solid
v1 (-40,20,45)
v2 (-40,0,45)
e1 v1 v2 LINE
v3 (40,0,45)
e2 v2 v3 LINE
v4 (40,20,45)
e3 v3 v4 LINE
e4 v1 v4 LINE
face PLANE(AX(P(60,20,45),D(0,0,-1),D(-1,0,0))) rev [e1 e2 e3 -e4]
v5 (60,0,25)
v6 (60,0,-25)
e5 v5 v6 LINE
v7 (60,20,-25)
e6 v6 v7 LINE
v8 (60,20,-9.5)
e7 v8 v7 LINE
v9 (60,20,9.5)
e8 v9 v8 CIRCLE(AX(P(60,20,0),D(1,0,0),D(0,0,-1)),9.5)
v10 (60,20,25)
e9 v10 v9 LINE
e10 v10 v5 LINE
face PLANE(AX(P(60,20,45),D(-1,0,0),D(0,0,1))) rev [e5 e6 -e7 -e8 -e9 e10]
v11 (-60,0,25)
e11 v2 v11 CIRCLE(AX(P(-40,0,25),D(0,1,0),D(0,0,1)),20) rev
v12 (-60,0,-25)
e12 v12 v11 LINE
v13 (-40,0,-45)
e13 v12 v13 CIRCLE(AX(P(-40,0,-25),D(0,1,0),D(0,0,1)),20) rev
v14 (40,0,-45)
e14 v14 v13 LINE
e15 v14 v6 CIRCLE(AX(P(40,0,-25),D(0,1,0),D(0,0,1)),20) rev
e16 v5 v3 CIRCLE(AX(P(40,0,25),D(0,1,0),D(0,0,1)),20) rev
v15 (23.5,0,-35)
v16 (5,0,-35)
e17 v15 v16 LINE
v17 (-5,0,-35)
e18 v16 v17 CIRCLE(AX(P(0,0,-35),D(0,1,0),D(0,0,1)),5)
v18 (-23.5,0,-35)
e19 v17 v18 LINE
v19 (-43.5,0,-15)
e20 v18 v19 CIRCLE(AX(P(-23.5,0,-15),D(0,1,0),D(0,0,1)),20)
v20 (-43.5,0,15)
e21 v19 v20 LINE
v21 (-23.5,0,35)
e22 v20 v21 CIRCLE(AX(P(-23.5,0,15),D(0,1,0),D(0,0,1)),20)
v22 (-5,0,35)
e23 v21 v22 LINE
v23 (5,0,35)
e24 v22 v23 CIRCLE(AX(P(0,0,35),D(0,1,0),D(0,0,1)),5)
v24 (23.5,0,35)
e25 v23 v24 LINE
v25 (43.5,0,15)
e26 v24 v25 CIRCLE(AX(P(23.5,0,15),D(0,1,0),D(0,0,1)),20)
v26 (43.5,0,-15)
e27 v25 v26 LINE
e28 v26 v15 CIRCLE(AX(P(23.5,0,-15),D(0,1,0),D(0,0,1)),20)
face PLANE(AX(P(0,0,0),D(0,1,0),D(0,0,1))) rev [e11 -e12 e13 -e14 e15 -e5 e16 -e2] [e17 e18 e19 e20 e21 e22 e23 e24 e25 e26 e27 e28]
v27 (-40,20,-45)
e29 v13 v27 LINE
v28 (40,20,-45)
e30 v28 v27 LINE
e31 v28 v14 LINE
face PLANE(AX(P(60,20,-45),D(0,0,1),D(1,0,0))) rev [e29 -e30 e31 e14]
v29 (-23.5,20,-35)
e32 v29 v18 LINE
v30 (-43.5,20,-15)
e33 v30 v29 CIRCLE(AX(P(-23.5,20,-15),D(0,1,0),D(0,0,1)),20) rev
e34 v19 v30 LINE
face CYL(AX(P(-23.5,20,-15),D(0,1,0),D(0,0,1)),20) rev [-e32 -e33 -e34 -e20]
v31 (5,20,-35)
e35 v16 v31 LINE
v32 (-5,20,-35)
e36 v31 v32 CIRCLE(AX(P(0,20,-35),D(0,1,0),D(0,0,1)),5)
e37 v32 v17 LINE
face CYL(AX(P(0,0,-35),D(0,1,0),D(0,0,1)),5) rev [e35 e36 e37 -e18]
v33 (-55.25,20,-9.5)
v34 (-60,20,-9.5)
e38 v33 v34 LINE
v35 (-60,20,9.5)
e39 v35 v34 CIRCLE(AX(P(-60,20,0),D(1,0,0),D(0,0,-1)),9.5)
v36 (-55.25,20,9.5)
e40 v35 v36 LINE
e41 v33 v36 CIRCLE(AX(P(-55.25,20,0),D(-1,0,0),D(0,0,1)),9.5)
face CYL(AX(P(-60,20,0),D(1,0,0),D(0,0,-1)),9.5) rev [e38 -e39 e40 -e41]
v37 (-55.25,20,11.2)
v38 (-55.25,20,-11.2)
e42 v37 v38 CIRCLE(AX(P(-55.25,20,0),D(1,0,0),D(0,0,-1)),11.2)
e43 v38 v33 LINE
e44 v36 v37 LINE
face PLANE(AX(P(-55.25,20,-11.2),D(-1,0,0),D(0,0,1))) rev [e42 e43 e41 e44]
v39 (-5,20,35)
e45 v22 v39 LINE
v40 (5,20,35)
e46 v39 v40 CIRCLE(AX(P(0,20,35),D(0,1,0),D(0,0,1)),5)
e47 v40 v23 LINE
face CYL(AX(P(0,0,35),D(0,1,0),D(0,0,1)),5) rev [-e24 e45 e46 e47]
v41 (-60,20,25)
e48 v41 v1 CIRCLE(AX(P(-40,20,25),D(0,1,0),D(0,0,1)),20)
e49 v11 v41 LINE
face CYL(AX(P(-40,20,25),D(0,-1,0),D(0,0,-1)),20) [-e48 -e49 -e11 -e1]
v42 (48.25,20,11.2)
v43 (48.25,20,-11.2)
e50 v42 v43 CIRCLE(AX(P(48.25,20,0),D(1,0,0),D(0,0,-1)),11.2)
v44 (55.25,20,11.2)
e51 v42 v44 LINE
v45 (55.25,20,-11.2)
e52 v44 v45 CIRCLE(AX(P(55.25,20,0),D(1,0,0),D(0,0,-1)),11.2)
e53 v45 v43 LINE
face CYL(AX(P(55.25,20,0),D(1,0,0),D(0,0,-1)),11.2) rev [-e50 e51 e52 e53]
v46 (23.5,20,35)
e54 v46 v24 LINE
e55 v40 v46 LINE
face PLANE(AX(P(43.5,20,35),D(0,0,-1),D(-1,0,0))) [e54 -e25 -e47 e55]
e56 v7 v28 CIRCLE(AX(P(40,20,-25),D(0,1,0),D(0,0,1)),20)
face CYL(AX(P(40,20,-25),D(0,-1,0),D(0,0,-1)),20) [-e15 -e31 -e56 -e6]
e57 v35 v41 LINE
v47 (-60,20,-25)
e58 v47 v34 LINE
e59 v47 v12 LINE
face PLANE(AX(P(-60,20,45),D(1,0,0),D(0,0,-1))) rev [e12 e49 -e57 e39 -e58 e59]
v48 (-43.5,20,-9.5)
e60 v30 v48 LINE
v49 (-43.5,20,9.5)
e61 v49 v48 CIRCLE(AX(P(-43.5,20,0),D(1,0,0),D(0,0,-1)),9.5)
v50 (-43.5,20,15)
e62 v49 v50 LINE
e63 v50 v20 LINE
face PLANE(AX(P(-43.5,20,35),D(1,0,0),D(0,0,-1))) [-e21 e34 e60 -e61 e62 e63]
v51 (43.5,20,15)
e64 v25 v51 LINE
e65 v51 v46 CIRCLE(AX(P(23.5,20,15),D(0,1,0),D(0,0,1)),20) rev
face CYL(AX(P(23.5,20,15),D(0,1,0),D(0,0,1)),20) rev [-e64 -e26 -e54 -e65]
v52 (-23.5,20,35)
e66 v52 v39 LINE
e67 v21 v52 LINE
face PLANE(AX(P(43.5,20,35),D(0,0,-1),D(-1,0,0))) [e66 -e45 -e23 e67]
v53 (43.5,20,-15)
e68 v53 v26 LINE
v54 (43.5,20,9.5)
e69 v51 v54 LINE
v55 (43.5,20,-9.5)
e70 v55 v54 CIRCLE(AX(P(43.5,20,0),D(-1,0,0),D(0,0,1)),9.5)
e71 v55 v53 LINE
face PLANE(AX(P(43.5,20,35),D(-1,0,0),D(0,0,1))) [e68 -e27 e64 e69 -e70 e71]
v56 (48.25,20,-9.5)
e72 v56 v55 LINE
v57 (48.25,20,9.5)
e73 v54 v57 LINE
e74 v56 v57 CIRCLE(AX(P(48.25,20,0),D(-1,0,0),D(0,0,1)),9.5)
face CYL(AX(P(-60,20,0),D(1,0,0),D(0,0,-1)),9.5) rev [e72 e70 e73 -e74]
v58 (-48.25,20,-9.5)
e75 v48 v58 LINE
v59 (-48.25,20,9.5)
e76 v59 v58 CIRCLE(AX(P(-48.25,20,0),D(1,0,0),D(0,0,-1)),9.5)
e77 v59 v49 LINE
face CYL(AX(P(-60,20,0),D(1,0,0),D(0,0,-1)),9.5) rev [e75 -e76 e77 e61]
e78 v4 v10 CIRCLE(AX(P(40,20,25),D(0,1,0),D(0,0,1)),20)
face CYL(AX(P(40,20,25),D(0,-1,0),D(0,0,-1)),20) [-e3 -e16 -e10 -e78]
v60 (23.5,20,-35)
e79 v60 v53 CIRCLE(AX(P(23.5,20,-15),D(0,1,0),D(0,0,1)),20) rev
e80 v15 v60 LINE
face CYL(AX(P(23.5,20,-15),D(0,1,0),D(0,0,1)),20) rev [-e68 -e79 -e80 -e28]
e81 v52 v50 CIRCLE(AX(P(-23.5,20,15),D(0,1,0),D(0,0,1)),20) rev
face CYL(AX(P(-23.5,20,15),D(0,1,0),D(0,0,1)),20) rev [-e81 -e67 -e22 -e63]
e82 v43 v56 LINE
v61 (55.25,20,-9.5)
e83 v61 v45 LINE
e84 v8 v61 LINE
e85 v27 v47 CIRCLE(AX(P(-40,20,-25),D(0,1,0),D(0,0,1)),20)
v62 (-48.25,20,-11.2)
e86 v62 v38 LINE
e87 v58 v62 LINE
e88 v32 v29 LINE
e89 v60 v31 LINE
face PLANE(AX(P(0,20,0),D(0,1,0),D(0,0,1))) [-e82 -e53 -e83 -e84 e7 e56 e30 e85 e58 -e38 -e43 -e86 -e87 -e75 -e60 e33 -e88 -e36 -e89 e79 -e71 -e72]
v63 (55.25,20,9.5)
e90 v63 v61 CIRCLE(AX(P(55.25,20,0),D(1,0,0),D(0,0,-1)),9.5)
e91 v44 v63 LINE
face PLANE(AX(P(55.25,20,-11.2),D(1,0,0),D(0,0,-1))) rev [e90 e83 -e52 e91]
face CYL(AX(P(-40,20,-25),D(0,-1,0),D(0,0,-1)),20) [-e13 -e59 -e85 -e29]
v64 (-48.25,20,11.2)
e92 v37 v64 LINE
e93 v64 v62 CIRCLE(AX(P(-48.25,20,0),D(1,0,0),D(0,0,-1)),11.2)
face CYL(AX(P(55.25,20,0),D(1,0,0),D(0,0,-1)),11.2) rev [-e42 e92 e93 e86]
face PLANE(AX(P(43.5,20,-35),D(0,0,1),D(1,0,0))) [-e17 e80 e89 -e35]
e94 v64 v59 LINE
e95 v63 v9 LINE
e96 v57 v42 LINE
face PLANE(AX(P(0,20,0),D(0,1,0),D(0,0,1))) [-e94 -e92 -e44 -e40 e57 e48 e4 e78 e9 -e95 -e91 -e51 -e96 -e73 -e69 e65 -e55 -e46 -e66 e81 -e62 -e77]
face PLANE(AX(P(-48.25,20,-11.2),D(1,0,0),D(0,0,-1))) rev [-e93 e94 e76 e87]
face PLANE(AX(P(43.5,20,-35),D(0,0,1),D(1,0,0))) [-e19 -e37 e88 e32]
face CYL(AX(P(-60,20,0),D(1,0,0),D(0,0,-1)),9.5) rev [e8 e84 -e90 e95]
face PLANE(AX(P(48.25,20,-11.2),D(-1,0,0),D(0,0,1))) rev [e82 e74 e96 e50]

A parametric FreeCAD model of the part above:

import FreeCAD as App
import Part
import Sketcher

V = App.Vector
Q = App.Units.Quantity


def edges_at(feature, points):
    """Names of the edges that pass closest to the given points."""
    edges = feature.Shape.Edges
    near = lambda p: min(range(len(edges)), key=lambda i: edges[i].distToShape(Part.Vertex(*p))[0])
    return sorted({f"Edge{near(p) + 1}" for p in points})


def add_polygon(sketch, points):
    """Adds a closed chain of lines whose ends are joined by coincident constraints."""
    first, n = sketch.GeometryCount, len(points)
    for a, b in zip(points, points[1:] + points[:1]):
        sketch.addGeometry(Part.LineSegment(App.Vector(*a, 0), App.Vector(*b, 0)), False)
    for i in range(n):
        sketch.addConstraint(Sketcher.Constraint("Coincident", first + i, 2, first + (i + 1) % n, 1))

doc = App.newDocument("Part")
body = doc.addObject("PartDesign::Body", "Body")

# Sketch on XZ plane
sketch1 = doc.addObject("Sketcher::SketchObject", "Sketch")
body.addObject(sketch1)
sketch1.AttachmentSupport = (doc.XZ_Plane, [""])
sketch1.MapMode = "FlatFace"
add_polygon(sketch1, [(-60, -45), (-60, 45), (60, 45), (60, -45)])  # lines 0-3
add_polygon(sketch1, [(44, 35), (-44, 35), (-44, -35), (44, -35)])  # lines 4-7
sketch1.addConstraint(Sketcher.Constraint("Vertical", 0))
sketch1.addConstraint(Sketcher.Constraint("Horizontal", 1))
sketch1.addConstraint(Sketcher.Constraint("Vertical", 2))
sketch1.addConstraint(Sketcher.Constraint("Horizontal", 3))
sketch1.addConstraint(Sketcher.Constraint("Horizontal", 4))
sketch1.addConstraint(Sketcher.Constraint("Vertical", 5))
sketch1.addConstraint(Sketcher.Constraint("Horizontal", 6))
sketch1.addConstraint(Sketcher.Constraint("Vertical", 7))
sketch1.addConstraint(Sketcher.Constraint("Symmetric", 0, 2, 2, 2, -1, 1))
sketch1.addConstraint(Sketcher.Constraint("Symmetric", 4, 2, 6, 2, -1, 1))
sketch1.addConstraint(Sketcher.Constraint("DistanceX", 1, 1, 1, 2, Q("120 mm")))
sketch1.addConstraint(Sketcher.Constraint("DistanceX", 4, 2, 4, 1, Q("87 mm")))
sketch1.addConstraint(Sketcher.Constraint("DistanceY", 0, 1, 0, 2, Q("90 mm")))
sketch1.addConstraint(Sketcher.Constraint("DistanceY", 5, 2, 5, 1, Q("70 mm")))
pad1 = doc.addObject("PartDesign::Pad", "Pad")
body.addObject(pad1)
pad1.Profile = sketch1
pad1.Length = 20
pad1.Reversed = True

# Sketch on XZ plane
sketch2 = doc.addObject("Sketcher::SketchObject", "Sketch001")
body.addObject(sketch2)
sketch2.AttachmentSupport = (doc.XZ_Plane, [""])
sketch2.MapMode = "FlatFace"
sketch2.AttachmentOffset = App.Placement(V(0, 0, -20), App.Rotation())
add_polygon(sketch2, [(-55, -11), (-55, 0), (-48, 0), (-48, -11)])  # lines 0-3
add_polygon(sketch2, [(48, -11), (48, 0), (55, 0), (55, -11)])  # lines 4-7
sketch2.addConstraint(Sketcher.Constraint("Vertical", 0))
sketch2.addConstraint(Sketcher.Constraint("Horizontal", 1))
sketch2.addConstraint(Sketcher.Constraint("Vertical", 2))
sketch2.addConstraint(Sketcher.Constraint("Horizontal", 3))
sketch2.addConstraint(Sketcher.Constraint("Vertical", 4))
sketch2.addConstraint(Sketcher.Constraint("Horizontal", 5))
sketch2.addConstraint(Sketcher.Constraint("Vertical", 6))
sketch2.addConstraint(Sketcher.Constraint("Horizontal", 7))
sketch2.addConstraint(Sketcher.Constraint("Symmetric", 1, 2, 4, 2, -1, 1))
sketch2.addConstraint(Sketcher.Constraint("Symmetric", 0, 2, 5, 2, -2))
sketch2.addConstraint(Sketcher.Constraint("Horizontal", 3, 2, 6, 2))
sketch2.addConstraint(Sketcher.Constraint("DistanceX", 1, 1, 1, 2, Q("7 mm")))
sketch2.addConstraint(Sketcher.Constraint("DistanceY", 0, 1, 0, 2, Q("11.2 mm")))
sketch2.addConstraint(Sketcher.Constraint("DistanceX", 1, 2, 4, 2, Q("96.5 mm")))
groove = doc.addObject("PartDesign::Groove", "Groove")
body.addObject(groove)
groove.Profile = sketch2
groove.ReferenceAxis = (sketch2, ["H_Axis"])
groove.Angle = 360

# Sketch on YZ plane
sketch3 = doc.addObject("Sketcher::SketchObject", "Sketch002")
body.addObject(sketch3)
sketch3.AttachmentSupport = (doc.YZ_Plane, [""])
sketch3.MapMode = "FlatFace"
sketch3.AttachmentOffset = App.Placement(V(0, 0, 60), App.Rotation())
sketch3.addGeometry(Part.Circle(V(20, 0, 0), V(0, 0, 1), 10), False)
sketch3.addConstraint(Sketcher.Constraint("PointOnObject", 0, 3, -1))
sketch3.addConstraint(Sketcher.Constraint("Diameter", 0, Q("19 mm")))
sketch3.addConstraint(Sketcher.Constraint("DistanceX", -1, 1, 0, 3, Q("20 mm")))
pocket1 = doc.addObject("PartDesign::Pocket", "Pocket")
body.addObject(pocket1)
pocket1.Profile = sketch3
pocket1.Type = "ThroughAll"
doc.recompute()

fillet = doc.addObject("PartDesign::Fillet", "Fillet")
body.addObject(fillet)
fillet.Base = (pocket1, edges_at(pocket1, [
    (-43.5, 10, -35),
    (-43.5, 10, 35),
    (43.5, 10, 35),
    (43.5, 10, -35),
    (-60, 10, -45),
    (60, 10, -45),
    (60, 10, 45),
    (-60, 10, 45),
]))
fillet.Radius = 20

# Sketch on XZ plane
sketch4 = doc.addObject("Sketcher::SketchObject", "Sketch003")
body.addObject(sketch4)
sketch4.AttachmentSupport = (doc.XZ_Plane, [""])
sketch4.MapMode = "FlatFace"
sketch4.AttachmentOffset = App.Placement(V(0, 0, -20), App.Rotation())
sketch4.addGeometry(Part.Circle(V(0, 35, 0), V(0, 0, 1), 5), False)
sketch4.addGeometry(Part.Circle(V(0, -35, 0), V(0, 0, 1), 5), False)
sketch4.addConstraint(Sketcher.Constraint("Equal", 0, 1))
sketch4.addConstraint(Sketcher.Constraint("Symmetric", 0, 3, 1, 3, -1, 1))
sketch4.addConstraint(Sketcher.Constraint("PointOnObject", 0, 3, -2))
sketch4.addConstraint(Sketcher.Constraint("Diameter", 0, Q("10 mm")))
sketch4.addConstraint(Sketcher.Constraint("DistanceY", -1, 1, 0, 3, Q("35 mm")))
pocket2 = doc.addObject("PartDesign::Pocket", "Pocket001")
body.addObject(pocket2)
pocket2.Profile = sketch4
pocket2.Type = "ThroughAll"
pocket2.Reversed = True

doc.recompute()
